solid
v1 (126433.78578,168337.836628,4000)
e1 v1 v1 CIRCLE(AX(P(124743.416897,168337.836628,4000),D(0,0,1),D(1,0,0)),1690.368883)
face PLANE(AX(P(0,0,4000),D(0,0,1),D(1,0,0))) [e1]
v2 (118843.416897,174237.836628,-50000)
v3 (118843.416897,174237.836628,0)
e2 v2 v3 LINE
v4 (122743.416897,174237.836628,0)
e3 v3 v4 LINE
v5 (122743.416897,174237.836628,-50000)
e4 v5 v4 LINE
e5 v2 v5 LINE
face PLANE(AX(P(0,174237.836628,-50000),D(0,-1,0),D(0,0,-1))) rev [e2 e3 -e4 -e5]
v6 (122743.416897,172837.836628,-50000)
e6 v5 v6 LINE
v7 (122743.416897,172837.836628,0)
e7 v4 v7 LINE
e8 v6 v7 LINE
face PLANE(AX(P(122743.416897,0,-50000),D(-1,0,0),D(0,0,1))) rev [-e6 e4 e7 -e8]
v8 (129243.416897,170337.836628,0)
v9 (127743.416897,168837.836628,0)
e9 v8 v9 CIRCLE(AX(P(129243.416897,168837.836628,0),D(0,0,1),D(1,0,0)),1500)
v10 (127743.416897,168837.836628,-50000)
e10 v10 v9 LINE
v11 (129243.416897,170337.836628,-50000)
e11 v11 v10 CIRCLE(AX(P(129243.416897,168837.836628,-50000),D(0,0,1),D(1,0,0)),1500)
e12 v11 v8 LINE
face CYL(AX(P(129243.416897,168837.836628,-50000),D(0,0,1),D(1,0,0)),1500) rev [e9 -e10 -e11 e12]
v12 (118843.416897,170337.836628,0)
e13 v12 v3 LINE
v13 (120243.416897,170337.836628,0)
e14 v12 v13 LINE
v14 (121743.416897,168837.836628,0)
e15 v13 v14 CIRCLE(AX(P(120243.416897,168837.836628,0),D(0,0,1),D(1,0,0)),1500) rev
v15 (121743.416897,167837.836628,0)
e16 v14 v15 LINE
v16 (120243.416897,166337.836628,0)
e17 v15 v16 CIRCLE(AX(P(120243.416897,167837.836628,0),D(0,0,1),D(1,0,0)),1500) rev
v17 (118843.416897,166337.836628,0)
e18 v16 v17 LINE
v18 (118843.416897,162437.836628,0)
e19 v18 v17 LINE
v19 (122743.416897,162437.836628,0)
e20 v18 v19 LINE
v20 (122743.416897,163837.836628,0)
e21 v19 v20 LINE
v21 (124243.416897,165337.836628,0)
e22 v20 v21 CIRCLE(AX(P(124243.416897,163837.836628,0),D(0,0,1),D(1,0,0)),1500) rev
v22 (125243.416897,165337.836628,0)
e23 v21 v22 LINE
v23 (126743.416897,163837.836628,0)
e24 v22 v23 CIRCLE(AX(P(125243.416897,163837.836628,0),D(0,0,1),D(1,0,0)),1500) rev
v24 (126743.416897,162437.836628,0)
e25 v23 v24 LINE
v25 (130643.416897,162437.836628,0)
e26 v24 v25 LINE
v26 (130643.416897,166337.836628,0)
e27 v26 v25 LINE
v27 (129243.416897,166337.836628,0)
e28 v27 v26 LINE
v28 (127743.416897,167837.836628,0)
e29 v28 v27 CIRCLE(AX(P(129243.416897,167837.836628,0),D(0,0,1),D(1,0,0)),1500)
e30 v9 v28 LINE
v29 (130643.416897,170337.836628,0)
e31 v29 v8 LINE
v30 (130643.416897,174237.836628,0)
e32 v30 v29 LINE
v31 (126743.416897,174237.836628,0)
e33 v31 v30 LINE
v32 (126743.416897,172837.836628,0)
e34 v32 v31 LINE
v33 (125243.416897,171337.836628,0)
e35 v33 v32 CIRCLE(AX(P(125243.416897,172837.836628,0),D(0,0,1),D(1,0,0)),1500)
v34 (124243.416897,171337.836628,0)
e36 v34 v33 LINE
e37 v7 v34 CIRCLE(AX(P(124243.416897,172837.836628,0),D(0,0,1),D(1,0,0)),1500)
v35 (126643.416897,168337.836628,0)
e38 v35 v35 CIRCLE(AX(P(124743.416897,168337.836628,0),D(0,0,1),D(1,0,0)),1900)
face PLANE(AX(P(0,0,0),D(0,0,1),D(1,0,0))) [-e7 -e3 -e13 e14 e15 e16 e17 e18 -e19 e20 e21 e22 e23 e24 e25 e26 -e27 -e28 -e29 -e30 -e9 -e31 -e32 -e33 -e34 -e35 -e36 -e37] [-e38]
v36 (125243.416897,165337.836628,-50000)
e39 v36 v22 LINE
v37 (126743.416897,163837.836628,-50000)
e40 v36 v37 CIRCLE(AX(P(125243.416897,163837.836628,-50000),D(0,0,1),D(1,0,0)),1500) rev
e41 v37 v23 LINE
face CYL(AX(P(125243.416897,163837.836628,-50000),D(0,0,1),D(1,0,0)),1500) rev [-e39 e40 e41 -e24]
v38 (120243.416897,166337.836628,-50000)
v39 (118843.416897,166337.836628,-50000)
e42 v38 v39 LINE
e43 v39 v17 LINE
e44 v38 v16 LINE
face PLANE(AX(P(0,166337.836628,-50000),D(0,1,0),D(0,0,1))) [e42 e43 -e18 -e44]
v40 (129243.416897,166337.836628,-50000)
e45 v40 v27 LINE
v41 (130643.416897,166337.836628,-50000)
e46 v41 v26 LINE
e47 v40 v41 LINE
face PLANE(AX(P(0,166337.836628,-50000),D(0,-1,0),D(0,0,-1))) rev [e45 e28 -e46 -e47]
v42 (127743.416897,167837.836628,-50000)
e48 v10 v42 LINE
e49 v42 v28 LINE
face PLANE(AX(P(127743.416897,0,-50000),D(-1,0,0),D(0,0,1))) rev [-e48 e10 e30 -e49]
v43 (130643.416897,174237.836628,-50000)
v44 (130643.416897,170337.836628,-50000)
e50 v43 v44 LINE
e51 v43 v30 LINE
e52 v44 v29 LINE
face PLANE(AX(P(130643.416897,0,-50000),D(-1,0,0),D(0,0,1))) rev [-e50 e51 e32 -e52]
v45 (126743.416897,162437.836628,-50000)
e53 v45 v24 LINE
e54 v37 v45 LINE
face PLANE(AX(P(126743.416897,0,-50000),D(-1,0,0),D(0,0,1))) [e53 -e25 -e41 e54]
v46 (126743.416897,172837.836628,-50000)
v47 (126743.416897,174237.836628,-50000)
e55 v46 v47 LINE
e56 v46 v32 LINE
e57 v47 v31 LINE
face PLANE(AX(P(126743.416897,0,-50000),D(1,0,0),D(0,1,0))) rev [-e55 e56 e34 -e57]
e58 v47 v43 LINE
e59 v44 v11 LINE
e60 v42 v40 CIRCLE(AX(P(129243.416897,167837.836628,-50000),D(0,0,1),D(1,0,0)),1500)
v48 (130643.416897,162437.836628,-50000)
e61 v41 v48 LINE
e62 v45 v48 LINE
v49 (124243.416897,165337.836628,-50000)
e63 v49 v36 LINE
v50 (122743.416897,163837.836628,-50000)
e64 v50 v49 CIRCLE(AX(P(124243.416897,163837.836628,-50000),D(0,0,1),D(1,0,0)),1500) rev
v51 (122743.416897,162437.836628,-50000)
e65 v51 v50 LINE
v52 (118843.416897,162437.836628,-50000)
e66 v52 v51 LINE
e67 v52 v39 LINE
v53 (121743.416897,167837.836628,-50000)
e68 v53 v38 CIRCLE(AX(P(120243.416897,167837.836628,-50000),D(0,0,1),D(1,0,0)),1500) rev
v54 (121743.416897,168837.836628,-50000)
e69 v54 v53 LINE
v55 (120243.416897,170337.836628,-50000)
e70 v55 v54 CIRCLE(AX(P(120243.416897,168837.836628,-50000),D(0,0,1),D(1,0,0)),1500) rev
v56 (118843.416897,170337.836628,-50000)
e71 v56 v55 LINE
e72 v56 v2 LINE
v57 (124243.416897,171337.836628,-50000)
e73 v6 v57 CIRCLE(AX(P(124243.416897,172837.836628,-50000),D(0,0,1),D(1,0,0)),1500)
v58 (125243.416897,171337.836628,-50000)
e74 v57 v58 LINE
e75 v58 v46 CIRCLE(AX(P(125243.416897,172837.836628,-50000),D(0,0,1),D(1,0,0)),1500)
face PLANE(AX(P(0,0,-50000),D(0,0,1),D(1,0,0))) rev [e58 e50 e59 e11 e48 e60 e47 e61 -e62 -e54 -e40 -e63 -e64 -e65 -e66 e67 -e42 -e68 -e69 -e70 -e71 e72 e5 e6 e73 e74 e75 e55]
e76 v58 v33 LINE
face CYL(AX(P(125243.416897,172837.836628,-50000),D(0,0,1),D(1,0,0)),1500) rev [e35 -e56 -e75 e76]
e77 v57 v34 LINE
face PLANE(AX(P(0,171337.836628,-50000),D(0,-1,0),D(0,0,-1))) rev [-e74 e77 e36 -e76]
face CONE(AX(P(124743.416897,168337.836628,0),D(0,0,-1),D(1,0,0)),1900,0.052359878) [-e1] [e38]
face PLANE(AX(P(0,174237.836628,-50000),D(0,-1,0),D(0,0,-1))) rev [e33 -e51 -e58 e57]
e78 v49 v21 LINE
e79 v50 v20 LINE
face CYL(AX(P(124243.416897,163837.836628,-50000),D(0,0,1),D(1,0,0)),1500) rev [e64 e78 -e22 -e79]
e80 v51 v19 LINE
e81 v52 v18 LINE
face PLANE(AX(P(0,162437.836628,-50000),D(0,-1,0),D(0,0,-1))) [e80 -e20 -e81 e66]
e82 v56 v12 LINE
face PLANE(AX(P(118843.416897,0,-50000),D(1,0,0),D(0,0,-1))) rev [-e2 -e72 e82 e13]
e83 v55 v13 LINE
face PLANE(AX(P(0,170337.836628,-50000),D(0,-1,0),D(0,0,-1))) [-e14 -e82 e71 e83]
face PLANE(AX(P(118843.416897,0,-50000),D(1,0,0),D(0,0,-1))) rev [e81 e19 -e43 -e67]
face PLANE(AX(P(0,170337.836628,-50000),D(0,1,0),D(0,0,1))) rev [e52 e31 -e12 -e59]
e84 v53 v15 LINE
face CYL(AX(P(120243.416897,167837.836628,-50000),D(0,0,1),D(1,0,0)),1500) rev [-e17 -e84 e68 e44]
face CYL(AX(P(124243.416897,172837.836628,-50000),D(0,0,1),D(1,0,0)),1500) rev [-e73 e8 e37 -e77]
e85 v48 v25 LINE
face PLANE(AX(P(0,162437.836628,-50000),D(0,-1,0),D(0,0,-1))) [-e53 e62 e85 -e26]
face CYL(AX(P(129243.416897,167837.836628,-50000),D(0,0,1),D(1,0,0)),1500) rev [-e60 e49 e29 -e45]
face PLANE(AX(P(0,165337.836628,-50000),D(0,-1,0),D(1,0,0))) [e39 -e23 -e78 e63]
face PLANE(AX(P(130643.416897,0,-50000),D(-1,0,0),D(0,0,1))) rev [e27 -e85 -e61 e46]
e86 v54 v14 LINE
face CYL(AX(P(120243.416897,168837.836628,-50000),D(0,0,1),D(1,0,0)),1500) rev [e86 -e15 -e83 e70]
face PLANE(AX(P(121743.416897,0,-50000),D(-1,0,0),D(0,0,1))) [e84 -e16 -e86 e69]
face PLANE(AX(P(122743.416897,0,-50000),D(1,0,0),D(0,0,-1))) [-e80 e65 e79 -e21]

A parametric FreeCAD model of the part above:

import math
import FreeCAD as App
import Part
import Sketcher

doc = App.newDocument("Part")
body = doc.addObject("PartDesign::Body", "Body")

sketch1 = body.newObject("Sketcher::SketchObject", "Sketch")
sketch1.AttachmentSupport = (doc.getObject("XY_Plane"), [""])
sketch1.MapMode = "FlatFace"
sketch1.addGeometry([
    Part.LineSegment(App.Vector(126743, 163838, 0), App.Vector(126743, 162438, 0)),
    Part.LineSegment(App.Vector(126743, 162438, 0), App.Vector(130643, 162438, 0)),
    Part.LineSegment(App.Vector(130643, 162438, 0), App.Vector(130643, 166338, 0)),
    Part.LineSegment(App.Vector(130643, 166338, 0), App.Vector(129243, 166338, 0)),
    Part.ArcOfCircle(Part.Circle(App.Vector(129243, 167838, 0), App.Vector(0, 0, 1), 1500), math.radians(-180), math.radians(-90)),
    Part.LineSegment(App.Vector(127743, 167838, 0), App.Vector(127743, 168838, 0)),
    Part.ArcOfCircle(Part.Circle(App.Vector(129243, 168838, 0), App.Vector(0, 0, 1), 1500), math.radians(90), math.radians(180)),
    Part.LineSegment(App.Vector(129243, 170338, 0), App.Vector(130643, 170338, 0)),
    Part.LineSegment(App.Vector(130643, 170338, 0), App.Vector(130643, 174238, 0)),
    Part.LineSegment(App.Vector(130643, 174238, 0), App.Vector(126743, 174238, 0)),
    Part.LineSegment(App.Vector(126743, 174238, 0), App.Vector(126743, 172838, 0)),
    Part.ArcOfCircle(Part.Circle(App.Vector(125243, 172838, 0), App.Vector(0, 0, 1), 1500), math.radians(-90), math.radians(0)),
    Part.LineSegment(App.Vector(125243, 171338, 0), App.Vector(124243, 171338, 0)),
    Part.ArcOfCircle(Part.Circle(App.Vector(124243, 172838, 0), App.Vector(0, 0, 1), 1500), math.radians(-180), math.radians(-90)),
    Part.LineSegment(App.Vector(122743, 172838, 0), App.Vector(122743, 174238, 0)),
    Part.LineSegment(App.Vector(122743, 174238, 0), App.Vector(118843, 174238, 0)),
    Part.LineSegment(App.Vector(118843, 174238, 0), App.Vector(118843, 170338, 0)),
    Part.LineSegment(App.Vector(118843, 170338, 0), App.Vector(120243, 170338, 0)),
    Part.ArcOfCircle(Part.Circle(App.Vector(120243, 168838, 0), App.Vector(0, 0, 1), 1500), math.radians(0), math.radians(90)),
    Part.LineSegment(App.Vector(121743, 168838, 0), App.Vector(121743, 167838, 0)),
    Part.ArcOfCircle(Part.Circle(App.Vector(120243, 167838, 0), App.Vector(0, 0, 1), 1500), math.radians(-90), math.radians(0)),
    Part.LineSegment(App.Vector(120243, 166338, 0), App.Vector(118843, 166338, 0)),
    Part.LineSegment(App.Vector(118843, 166338, 0), App.Vector(118843, 162438, 0)),
    Part.LineSegment(App.Vector(118843, 162438, 0), App.Vector(122743, 162438, 0)),
    Part.LineSegment(App.Vector(122743, 162438, 0), App.Vector(122743, 163838, 0)),
    Part.ArcOfCircle(Part.Circle(App.Vector(124243, 163838, 0), App.Vector(0, 0, 1), 1500), math.radians(90), math.radians(180)),
    Part.LineSegment(App.Vector(124243, 165338, 0), App.Vector(125243, 165338, 0)),
    Part.ArcOfCircle(Part.Circle(App.Vector(125243, 163838, 0), App.Vector(0, 0, 1), 1500), math.radians(0), math.radians(90)),
], False)
sketch1.addConstraint([
    Sketcher.Constraint("Coincident", 0, 2, 1, 1),
    Sketcher.Constraint("Coincident", 1, 2, 2, 1),
    Sketcher.Constraint("Coincident", 2, 2, 3, 1),
    Sketcher.Constraint("Coincident", 3, 2, 4, 2),
    Sketcher.Constraint("Coincident", 4, 1, 5, 1),
    Sketcher.Constraint("Coincident", 5, 2, 6, 2),
    Sketcher.Constraint("Coincident", 6, 1, 7, 1),
    Sketcher.Constraint("Coincident", 7, 2, 8, 1),
    Sketcher.Constraint("Coincident", 8, 2, 9, 1),
    Sketcher.Constraint("Coincident", 9, 2, 10, 1),
    Sketcher.Constraint("Coincident", 10, 2, 11, 2),
    Sketcher.Constraint("Coincident", 11, 1, 12, 1),
    Sketcher.Constraint("Coincident", 12, 2, 13, 2),
    Sketcher.Constraint("Coincident", 13, 1, 14, 1),
    Sketcher.Constraint("Coincident", 14, 2, 15, 1),
    Sketcher.Constraint("Coincident", 15, 2, 16, 1),
    Sketcher.Constraint("Coincident", 16, 2, 17, 1),
    Sketcher.Constraint("Coincident", 17, 2, 18, 2),
    Sketcher.Constraint("Coincident", 18, 1, 19, 1),
    Sketcher.Constraint("Coincident", 19, 2, 20, 2),
    Sketcher.Constraint("Coincident", 20, 1, 21, 1),
    Sketcher.Constraint("Coincident", 21, 2, 22, 1),
    Sketcher.Constraint("Coincident", 22, 2, 23, 1),
    Sketcher.Constraint("Coincident", 23, 2, 24, 1),
    Sketcher.Constraint("Coincident", 24, 2, 25, 2),
    Sketcher.Constraint("Coincident", 25, 1, 26, 1),
    Sketcher.Constraint("Coincident", 26, 2, 27, 2),
    Sketcher.Constraint("Coincident", 27, 1, 0, 1),
    Sketcher.Constraint("Vertical", 0),
    Sketcher.Constraint("Horizontal", 1),
    Sketcher.Constraint("Vertical", 2),
    Sketcher.Constraint("Horizontal", 3),
    Sketcher.Constraint("Vertical", 5),
    Sketcher.Constraint("Horizontal", 7),
    Sketcher.Constraint("Vertical", 8),
    Sketcher.Constraint("Horizontal", 9),
    Sketcher.Constraint("Vertical", 10),
    Sketcher.Constraint("Horizontal", 12),
    Sketcher.Constraint("Vertical", 14),
    Sketcher.Constraint("Horizontal", 15),
    Sketcher.Constraint("Vertical", 16),
    Sketcher.Constraint("Horizontal", 17),
    Sketcher.Constraint("Vertical", 19),
    Sketcher.Constraint("Horizontal", 21),
    Sketcher.Constraint("Vertical", 22),
    Sketcher.Constraint("Horizontal", 23),
    Sketcher.Constraint("Vertical", 24),
    Sketcher.Constraint("Horizontal", 26),
    Sketcher.Constraint("Equal", 4, 6),
    Sketcher.Constraint("Equal", 6, 11),
    Sketcher.Constraint("Equal", 11, 13),
    Sketcher.Constraint("Equal", 13, 18),
    Sketcher.Constraint("Equal", 18, 20),
    Sketcher.Constraint("Equal", 20, 25),
    Sketcher.Constraint("Equal", 25, 27),
    Sketcher.Constraint("Horizontal", 6, 3, 18, 3),
    Sketcher.Constraint("Horizontal", 4, 3, 20, 3),
    Sketcher.Constraint("Horizontal", 18, 3, 5, 2),
    Sketcher.Constraint("Horizontal", 13, 3, 10, 2),
    Sketcher.Constraint("Horizontal", 9, 2, 14, 2),
    Sketcher.Constraint("Horizontal", 1, 2, 22, 2),
    Sketcher.Constraint("Horizontal", 27, 3, 24, 2),
    Sketcher.Constraint("Vertical", 13, 3, 25, 3),
    Sketcher.Constraint("Vertical", 11, 3, 27, 3),
    Sketcher.Constraint("Vertical", 6, 3, 3, 2),
    Sketcher.Constraint("Vertical", 2, 2, 7, 2),
    Sketcher.Constraint("Vertical", 25, 3, 12, 2),
    Sketcher.Constraint("Vertical", 20, 3, 17, 2),
    Sketcher.Constraint("Vertical", 16, 2, 21, 2),
    Sketcher.Constraint("Equal", 3, 7),
    Sketcher.Constraint("Equal", 9, 15),
    Sketcher.Constraint("Equal", 7, 17),
    Sketcher.Constraint("Equal", 17, 21),
    Sketcher.Constraint("Equal", 12, 26),
    Sketcher.Constraint("Equal", 21, 0),
    Sketcher.Constraint("Equal", 23, 2),
    Sketcher.Constraint("Equal", 26, 5),
    Sketcher.Constraint("Equal", 2, 8),
    Sketcher.Constraint("Equal", 0, 10),
    Sketcher.Constraint("Equal", 10, 14),
    Sketcher.Constraint("Equal", 5, 19),
    Sketcher.Constraint("Equal", 14, 24),
    Sketcher.Constraint("Radius", 4, 1500.0),
    Sketcher.Constraint("DistanceX", 1, 1, 1, 2, 3900.0),
    Sketcher.Constraint("DistanceX", 3, 2, 3, 1, 1400.0),
    Sketcher.Constraint("DistanceX", 12, 2, 12, 1, 1000.0),
    Sketcher.Constraint("DistanceY", 4, 3, 6, 3, 1000.0),
    Sketcher.Constraint("DistanceX", 13, 3, 11, 3, 1000.0),
    Sketcher.Constraint("DistanceY", 19, 2, 18, 3, 1000.0),
    Sketcher.Constraint("DistanceX", 25, 3, 26, 2, 1000.0),
    Sketcher.Constraint("DistanceX", -1, 1, 4, 3, 129243.416897),
    Sketcher.Constraint("DistanceY", -1, 1, 4, 3, 167837.836628),
])
pad1 = body.newObject("PartDesign::Pad", "Pad")
pad1.Profile = sketch1
pad1.Length = 50000
pad1.Reversed = True

sketch2 = body.newObject("Sketcher::SketchObject", "Sketch001")
sketch2.AttachmentSupport = (doc.getObject("XY_Plane"), [""])
sketch2.MapMode = "FlatFace"
sketch2.addGeometry(Part.Circle(App.Vector(124743.416897, 168337.836628, 0), App.Vector(0, 0, 1), 1900), False)
sketch2.addConstraint([
    Sketcher.Constraint("Diameter", 0, 3800.0),
    Sketcher.Constraint("DistanceX", -1, 1, 0, 3, 124743.416897),
    Sketcher.Constraint("DistanceY", -1, 1, 0, 3, 168337.836628),
])
pad2 = body.newObject("PartDesign::Pad", "Pad001")
pad2.Profile = sketch2
pad2.Length = 4000
pad2.TaperAngle = -3

doc.recompute()
